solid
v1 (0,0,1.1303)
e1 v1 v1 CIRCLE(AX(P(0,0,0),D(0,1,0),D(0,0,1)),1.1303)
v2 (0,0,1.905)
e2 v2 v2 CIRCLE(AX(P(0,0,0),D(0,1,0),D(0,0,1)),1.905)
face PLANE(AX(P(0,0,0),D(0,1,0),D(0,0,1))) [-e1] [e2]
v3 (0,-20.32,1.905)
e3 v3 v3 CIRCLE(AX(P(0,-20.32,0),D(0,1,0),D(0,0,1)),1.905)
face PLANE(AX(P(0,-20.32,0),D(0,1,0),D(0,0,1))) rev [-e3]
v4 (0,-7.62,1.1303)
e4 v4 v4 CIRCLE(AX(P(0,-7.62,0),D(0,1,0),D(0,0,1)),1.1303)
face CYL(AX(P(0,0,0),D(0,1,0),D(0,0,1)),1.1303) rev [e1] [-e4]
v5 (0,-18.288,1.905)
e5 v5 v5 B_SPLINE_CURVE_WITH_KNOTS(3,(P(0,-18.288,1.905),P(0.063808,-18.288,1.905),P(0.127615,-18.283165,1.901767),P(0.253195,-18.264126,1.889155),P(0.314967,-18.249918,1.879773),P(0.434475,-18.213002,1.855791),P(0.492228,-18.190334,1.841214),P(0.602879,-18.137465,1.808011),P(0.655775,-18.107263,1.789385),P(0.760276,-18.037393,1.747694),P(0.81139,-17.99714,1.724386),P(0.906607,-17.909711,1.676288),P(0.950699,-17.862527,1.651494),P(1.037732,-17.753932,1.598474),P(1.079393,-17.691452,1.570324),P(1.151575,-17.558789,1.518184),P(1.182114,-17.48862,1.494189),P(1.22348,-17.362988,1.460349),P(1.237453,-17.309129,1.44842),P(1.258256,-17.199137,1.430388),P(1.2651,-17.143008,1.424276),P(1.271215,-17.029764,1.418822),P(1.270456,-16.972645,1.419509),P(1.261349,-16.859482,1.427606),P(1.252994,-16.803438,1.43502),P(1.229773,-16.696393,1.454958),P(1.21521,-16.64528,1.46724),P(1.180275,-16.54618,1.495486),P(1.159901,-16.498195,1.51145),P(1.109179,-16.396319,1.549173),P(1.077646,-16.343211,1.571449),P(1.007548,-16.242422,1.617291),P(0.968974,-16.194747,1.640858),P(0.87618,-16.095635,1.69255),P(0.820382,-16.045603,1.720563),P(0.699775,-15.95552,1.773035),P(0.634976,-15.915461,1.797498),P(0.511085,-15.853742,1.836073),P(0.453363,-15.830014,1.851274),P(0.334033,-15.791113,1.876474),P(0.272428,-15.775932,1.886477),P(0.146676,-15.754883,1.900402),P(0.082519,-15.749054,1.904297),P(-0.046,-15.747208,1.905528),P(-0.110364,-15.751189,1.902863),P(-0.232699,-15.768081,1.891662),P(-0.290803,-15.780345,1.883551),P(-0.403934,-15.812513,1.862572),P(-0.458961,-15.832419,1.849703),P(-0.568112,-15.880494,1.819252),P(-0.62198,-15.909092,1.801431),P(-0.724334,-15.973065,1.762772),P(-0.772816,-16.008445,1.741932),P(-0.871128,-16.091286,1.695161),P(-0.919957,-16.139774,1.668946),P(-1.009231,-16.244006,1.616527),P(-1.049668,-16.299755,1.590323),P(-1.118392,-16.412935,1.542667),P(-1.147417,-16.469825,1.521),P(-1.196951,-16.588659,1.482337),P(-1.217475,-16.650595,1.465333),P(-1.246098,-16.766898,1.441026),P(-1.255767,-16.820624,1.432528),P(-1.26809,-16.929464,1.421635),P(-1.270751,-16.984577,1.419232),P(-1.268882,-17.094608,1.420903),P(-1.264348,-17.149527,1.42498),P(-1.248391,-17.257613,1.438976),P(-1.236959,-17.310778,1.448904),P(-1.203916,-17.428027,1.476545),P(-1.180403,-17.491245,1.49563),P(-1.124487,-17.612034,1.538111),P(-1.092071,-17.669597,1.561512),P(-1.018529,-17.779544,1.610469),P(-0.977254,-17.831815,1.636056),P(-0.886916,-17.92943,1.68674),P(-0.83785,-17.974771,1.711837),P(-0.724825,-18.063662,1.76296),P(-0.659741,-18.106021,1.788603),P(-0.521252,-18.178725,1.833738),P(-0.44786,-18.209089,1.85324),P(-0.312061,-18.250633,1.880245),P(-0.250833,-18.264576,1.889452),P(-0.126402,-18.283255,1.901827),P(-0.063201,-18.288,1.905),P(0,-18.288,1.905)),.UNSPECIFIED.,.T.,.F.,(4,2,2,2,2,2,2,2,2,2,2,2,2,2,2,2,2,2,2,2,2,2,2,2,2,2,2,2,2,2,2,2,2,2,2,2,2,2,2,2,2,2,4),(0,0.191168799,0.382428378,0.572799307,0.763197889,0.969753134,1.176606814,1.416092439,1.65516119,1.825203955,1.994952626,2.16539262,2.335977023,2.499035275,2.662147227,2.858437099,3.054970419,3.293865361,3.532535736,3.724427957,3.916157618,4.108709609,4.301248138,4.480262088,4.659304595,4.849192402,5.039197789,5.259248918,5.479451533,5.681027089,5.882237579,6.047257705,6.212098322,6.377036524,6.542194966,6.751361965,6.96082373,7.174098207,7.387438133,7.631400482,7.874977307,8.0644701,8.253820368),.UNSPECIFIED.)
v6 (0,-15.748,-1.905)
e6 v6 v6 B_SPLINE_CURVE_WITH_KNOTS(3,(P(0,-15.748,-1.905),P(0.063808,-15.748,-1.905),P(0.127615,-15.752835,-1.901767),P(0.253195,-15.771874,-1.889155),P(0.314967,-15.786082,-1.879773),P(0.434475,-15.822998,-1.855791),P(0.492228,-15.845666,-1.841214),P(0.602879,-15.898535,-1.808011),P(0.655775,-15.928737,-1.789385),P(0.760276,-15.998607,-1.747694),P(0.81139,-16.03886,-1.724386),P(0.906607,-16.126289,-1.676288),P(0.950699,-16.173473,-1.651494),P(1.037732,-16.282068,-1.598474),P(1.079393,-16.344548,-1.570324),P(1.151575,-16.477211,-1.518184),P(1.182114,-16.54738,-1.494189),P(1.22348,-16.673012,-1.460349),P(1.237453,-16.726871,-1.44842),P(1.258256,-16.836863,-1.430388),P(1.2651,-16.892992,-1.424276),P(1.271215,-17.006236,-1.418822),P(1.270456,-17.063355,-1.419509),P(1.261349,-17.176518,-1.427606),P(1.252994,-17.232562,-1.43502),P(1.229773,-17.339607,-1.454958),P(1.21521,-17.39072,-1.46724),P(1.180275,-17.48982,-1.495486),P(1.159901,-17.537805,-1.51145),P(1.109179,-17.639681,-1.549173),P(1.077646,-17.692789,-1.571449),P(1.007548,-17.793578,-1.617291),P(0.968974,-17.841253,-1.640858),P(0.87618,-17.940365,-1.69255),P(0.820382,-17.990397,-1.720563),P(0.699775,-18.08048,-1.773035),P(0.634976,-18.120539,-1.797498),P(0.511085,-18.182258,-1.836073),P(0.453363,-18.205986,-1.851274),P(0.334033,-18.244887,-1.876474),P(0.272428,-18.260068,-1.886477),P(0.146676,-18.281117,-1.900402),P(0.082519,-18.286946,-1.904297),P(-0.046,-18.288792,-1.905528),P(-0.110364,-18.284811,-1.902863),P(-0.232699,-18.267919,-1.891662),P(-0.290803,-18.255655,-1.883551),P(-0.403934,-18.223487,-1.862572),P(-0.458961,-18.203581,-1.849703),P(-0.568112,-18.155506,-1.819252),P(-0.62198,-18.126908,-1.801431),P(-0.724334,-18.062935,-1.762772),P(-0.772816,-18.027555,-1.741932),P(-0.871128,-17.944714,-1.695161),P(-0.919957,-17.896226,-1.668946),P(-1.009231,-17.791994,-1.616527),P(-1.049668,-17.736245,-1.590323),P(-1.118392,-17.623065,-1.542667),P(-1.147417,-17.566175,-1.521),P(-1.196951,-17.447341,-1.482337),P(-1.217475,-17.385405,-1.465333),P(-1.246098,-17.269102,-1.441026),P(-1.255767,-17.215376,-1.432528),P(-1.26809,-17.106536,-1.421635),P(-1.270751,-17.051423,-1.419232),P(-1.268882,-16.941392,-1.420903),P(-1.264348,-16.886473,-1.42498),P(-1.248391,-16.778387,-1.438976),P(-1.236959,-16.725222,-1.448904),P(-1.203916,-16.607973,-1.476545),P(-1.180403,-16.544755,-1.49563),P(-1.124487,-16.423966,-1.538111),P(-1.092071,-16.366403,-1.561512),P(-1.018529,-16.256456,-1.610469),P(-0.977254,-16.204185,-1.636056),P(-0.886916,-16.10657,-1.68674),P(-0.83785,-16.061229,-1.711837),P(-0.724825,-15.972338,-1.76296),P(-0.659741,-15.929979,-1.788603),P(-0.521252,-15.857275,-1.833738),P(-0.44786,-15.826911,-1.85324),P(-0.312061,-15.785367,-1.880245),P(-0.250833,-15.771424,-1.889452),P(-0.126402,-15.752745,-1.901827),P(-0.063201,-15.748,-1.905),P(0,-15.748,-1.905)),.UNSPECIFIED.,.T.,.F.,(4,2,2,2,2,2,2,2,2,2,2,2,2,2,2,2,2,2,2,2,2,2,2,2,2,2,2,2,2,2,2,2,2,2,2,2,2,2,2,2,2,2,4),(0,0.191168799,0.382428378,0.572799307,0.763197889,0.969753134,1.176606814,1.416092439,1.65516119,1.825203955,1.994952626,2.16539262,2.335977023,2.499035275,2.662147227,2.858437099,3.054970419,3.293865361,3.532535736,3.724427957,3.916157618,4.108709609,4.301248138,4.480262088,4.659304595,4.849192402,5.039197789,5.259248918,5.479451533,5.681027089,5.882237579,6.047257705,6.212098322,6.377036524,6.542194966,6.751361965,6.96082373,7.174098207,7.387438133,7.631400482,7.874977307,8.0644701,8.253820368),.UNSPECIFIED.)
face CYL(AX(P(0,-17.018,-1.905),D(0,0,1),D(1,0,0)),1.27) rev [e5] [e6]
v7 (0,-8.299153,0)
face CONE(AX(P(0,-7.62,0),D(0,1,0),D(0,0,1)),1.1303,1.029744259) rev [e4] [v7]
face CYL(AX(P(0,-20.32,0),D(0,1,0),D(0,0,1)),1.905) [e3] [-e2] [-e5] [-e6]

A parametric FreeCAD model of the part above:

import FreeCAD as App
import Part
import Sketcher

V = App.Vector
Q = App.Units.Quantity

doc = App.newDocument("Part")
body = doc.addObject("PartDesign::Body", "Body")

# Sketch on XZ plane
sketch1 = body.newObject("Sketcher::SketchObject", "Sketch")
sketch1.AttachmentSupport = (doc.getObject("XZ_Plane"), [""])
sketch1.MapMode = "FlatFace"
sketch1.addGeometry(Part.Circle(V(0, 0, 0), V(0, 0, 1), 1.9), False)
sketch1.addConstraint(Sketcher.Constraint("Coincident", 0, 3, -1, 1))
sketch1.addConstraint(Sketcher.Constraint("Diameter", 0, Q("0.15 in")))
pad1 = body.newObject("PartDesign::Pad", "Pad")
pad1.Profile = sketch1
pad1.Length = Q("0.8 in")

# Sketch on XZ plane
sketch2 = body.newObject("Sketcher::SketchObject", "Sketch001")
sketch2.AttachmentSupport = (doc.getObject("XZ_Plane"), [""])
sketch2.MapMode = "FlatFace"
sketch2.addGeometry(Part.Circle(V(0, 0, 0), V(0, 0, 1), 1.1), False)
sketch2.addConstraint(Sketcher.Constraint("Coincident", 0, 3, -1, 1))
sketch2.addConstraint(Sketcher.Constraint("Diameter", 0, Q("0.089 in")))
doc.recompute()
hole = body.newObject("PartDesign::Hole", "Hole")
hole.Profile = sketch2
hole.ThreadType = "None"
hole.Diameter = Q("0.089 in")
hole.DepthType = "Dimension"
hole.Depth = Q("0.3 in")
hole.DrillPoint = "Angled"
hole.DrillPointAngle = 118
hole.Reversed = True

# Sketch on XY plane
sketch3 = body.newObject("Sketcher::SketchObject", "Sketch002")
sketch3.AttachmentSupport = (doc.getObject("XY_Plane"), [""])
sketch3.MapMode = "FlatFace"
sketch3.addGeometry(Part.Circle(V(0, -17, 0), V(0, 0, 1), 1.3), False)
sketch3.addConstraint(Sketcher.Constraint("PointOnObject", 0, 3, -2))
sketch3.addConstraint(Sketcher.Constraint("Diameter", 0, Q("0.1 in")))
sketch3.addConstraint(Sketcher.Constraint("DistanceY", 0, 3, -1, 1, Q("0.67 in")))
pocket1 = body.newObject("PartDesign::Pocket", "Pocket")
pocket1.Profile = sketch3
pocket1.Type = "ThroughAll"
pocket1.Midplane = True

doc.recompute()
